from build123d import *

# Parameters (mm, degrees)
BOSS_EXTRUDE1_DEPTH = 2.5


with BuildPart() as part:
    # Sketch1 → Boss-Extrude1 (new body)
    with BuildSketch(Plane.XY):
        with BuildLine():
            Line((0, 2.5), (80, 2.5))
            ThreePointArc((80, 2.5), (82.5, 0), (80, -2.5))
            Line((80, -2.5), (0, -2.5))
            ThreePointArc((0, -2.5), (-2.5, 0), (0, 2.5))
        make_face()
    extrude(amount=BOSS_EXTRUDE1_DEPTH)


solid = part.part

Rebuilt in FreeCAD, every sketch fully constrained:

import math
import FreeCAD as App
import Part
import Sketcher

doc = App.newDocument("Part")
body = doc.addObject("PartDesign::Body", "Body")

sketch1 = body.newObject("Sketcher::SketchObject", "Sketch")
sketch1.AttachmentSupport = (doc.getObject("XY_Plane"), [""])
sketch1.MapMode = "FlatFace"
sketch1.addGeometry(Part.LineSegment(App.Vector(80, 2.5, 0), App.Vector(0, 2.5, 0)), False)
sketch1.addGeometry(Part.ArcOfCircle(Part.Circle(App.Vector(0, 0, 0), App.Vector(0, 0, 1), 2.5), math.radians(90), math.radians(270)), False)
sketch1.addGeometry(Part.LineSegment(App.Vector(0, -2.5, 0), App.Vector(80, -2.5, 0)), False)
sketch1.addGeometry(Part.ArcOfCircle(Part.Circle(App.Vector(80, 0, 0), App.Vector(0, 0, 1), 2.5), math.radians(-90), math.radians(90)), False)
sketch1.addConstraint(Sketcher.Constraint("Tangent", 0, 2, 1, 1))
sketch1.addConstraint(Sketcher.Constraint("Tangent", 1, 2, 2, 1))
sketch1.addConstraint(Sketcher.Constraint("Tangent", 2, 2, 3, 1))
sketch1.addConstraint(Sketcher.Constraint("Tangent", 3, 2, 0, 1))
sketch1.addConstraint(Sketcher.Constraint("Horizontal", 0))
sketch1.addConstraint(Sketcher.Constraint("Horizontal", 2))
sketch1.addConstraint(Sketcher.Constraint("Coincident", 1, 3, -1, 1))
sketch1.addConstraint(Sketcher.Constraint("Radius", 1, 2.5))
sketch1.addConstraint(Sketcher.Constraint("DistanceX", 0, 2, 0, 1, 80.0))
pad1 = body.newObject("PartDesign::Pad", "Pad")
pad1.Profile = sketch1
pad1.Length = 2.5

doc.recompute()
